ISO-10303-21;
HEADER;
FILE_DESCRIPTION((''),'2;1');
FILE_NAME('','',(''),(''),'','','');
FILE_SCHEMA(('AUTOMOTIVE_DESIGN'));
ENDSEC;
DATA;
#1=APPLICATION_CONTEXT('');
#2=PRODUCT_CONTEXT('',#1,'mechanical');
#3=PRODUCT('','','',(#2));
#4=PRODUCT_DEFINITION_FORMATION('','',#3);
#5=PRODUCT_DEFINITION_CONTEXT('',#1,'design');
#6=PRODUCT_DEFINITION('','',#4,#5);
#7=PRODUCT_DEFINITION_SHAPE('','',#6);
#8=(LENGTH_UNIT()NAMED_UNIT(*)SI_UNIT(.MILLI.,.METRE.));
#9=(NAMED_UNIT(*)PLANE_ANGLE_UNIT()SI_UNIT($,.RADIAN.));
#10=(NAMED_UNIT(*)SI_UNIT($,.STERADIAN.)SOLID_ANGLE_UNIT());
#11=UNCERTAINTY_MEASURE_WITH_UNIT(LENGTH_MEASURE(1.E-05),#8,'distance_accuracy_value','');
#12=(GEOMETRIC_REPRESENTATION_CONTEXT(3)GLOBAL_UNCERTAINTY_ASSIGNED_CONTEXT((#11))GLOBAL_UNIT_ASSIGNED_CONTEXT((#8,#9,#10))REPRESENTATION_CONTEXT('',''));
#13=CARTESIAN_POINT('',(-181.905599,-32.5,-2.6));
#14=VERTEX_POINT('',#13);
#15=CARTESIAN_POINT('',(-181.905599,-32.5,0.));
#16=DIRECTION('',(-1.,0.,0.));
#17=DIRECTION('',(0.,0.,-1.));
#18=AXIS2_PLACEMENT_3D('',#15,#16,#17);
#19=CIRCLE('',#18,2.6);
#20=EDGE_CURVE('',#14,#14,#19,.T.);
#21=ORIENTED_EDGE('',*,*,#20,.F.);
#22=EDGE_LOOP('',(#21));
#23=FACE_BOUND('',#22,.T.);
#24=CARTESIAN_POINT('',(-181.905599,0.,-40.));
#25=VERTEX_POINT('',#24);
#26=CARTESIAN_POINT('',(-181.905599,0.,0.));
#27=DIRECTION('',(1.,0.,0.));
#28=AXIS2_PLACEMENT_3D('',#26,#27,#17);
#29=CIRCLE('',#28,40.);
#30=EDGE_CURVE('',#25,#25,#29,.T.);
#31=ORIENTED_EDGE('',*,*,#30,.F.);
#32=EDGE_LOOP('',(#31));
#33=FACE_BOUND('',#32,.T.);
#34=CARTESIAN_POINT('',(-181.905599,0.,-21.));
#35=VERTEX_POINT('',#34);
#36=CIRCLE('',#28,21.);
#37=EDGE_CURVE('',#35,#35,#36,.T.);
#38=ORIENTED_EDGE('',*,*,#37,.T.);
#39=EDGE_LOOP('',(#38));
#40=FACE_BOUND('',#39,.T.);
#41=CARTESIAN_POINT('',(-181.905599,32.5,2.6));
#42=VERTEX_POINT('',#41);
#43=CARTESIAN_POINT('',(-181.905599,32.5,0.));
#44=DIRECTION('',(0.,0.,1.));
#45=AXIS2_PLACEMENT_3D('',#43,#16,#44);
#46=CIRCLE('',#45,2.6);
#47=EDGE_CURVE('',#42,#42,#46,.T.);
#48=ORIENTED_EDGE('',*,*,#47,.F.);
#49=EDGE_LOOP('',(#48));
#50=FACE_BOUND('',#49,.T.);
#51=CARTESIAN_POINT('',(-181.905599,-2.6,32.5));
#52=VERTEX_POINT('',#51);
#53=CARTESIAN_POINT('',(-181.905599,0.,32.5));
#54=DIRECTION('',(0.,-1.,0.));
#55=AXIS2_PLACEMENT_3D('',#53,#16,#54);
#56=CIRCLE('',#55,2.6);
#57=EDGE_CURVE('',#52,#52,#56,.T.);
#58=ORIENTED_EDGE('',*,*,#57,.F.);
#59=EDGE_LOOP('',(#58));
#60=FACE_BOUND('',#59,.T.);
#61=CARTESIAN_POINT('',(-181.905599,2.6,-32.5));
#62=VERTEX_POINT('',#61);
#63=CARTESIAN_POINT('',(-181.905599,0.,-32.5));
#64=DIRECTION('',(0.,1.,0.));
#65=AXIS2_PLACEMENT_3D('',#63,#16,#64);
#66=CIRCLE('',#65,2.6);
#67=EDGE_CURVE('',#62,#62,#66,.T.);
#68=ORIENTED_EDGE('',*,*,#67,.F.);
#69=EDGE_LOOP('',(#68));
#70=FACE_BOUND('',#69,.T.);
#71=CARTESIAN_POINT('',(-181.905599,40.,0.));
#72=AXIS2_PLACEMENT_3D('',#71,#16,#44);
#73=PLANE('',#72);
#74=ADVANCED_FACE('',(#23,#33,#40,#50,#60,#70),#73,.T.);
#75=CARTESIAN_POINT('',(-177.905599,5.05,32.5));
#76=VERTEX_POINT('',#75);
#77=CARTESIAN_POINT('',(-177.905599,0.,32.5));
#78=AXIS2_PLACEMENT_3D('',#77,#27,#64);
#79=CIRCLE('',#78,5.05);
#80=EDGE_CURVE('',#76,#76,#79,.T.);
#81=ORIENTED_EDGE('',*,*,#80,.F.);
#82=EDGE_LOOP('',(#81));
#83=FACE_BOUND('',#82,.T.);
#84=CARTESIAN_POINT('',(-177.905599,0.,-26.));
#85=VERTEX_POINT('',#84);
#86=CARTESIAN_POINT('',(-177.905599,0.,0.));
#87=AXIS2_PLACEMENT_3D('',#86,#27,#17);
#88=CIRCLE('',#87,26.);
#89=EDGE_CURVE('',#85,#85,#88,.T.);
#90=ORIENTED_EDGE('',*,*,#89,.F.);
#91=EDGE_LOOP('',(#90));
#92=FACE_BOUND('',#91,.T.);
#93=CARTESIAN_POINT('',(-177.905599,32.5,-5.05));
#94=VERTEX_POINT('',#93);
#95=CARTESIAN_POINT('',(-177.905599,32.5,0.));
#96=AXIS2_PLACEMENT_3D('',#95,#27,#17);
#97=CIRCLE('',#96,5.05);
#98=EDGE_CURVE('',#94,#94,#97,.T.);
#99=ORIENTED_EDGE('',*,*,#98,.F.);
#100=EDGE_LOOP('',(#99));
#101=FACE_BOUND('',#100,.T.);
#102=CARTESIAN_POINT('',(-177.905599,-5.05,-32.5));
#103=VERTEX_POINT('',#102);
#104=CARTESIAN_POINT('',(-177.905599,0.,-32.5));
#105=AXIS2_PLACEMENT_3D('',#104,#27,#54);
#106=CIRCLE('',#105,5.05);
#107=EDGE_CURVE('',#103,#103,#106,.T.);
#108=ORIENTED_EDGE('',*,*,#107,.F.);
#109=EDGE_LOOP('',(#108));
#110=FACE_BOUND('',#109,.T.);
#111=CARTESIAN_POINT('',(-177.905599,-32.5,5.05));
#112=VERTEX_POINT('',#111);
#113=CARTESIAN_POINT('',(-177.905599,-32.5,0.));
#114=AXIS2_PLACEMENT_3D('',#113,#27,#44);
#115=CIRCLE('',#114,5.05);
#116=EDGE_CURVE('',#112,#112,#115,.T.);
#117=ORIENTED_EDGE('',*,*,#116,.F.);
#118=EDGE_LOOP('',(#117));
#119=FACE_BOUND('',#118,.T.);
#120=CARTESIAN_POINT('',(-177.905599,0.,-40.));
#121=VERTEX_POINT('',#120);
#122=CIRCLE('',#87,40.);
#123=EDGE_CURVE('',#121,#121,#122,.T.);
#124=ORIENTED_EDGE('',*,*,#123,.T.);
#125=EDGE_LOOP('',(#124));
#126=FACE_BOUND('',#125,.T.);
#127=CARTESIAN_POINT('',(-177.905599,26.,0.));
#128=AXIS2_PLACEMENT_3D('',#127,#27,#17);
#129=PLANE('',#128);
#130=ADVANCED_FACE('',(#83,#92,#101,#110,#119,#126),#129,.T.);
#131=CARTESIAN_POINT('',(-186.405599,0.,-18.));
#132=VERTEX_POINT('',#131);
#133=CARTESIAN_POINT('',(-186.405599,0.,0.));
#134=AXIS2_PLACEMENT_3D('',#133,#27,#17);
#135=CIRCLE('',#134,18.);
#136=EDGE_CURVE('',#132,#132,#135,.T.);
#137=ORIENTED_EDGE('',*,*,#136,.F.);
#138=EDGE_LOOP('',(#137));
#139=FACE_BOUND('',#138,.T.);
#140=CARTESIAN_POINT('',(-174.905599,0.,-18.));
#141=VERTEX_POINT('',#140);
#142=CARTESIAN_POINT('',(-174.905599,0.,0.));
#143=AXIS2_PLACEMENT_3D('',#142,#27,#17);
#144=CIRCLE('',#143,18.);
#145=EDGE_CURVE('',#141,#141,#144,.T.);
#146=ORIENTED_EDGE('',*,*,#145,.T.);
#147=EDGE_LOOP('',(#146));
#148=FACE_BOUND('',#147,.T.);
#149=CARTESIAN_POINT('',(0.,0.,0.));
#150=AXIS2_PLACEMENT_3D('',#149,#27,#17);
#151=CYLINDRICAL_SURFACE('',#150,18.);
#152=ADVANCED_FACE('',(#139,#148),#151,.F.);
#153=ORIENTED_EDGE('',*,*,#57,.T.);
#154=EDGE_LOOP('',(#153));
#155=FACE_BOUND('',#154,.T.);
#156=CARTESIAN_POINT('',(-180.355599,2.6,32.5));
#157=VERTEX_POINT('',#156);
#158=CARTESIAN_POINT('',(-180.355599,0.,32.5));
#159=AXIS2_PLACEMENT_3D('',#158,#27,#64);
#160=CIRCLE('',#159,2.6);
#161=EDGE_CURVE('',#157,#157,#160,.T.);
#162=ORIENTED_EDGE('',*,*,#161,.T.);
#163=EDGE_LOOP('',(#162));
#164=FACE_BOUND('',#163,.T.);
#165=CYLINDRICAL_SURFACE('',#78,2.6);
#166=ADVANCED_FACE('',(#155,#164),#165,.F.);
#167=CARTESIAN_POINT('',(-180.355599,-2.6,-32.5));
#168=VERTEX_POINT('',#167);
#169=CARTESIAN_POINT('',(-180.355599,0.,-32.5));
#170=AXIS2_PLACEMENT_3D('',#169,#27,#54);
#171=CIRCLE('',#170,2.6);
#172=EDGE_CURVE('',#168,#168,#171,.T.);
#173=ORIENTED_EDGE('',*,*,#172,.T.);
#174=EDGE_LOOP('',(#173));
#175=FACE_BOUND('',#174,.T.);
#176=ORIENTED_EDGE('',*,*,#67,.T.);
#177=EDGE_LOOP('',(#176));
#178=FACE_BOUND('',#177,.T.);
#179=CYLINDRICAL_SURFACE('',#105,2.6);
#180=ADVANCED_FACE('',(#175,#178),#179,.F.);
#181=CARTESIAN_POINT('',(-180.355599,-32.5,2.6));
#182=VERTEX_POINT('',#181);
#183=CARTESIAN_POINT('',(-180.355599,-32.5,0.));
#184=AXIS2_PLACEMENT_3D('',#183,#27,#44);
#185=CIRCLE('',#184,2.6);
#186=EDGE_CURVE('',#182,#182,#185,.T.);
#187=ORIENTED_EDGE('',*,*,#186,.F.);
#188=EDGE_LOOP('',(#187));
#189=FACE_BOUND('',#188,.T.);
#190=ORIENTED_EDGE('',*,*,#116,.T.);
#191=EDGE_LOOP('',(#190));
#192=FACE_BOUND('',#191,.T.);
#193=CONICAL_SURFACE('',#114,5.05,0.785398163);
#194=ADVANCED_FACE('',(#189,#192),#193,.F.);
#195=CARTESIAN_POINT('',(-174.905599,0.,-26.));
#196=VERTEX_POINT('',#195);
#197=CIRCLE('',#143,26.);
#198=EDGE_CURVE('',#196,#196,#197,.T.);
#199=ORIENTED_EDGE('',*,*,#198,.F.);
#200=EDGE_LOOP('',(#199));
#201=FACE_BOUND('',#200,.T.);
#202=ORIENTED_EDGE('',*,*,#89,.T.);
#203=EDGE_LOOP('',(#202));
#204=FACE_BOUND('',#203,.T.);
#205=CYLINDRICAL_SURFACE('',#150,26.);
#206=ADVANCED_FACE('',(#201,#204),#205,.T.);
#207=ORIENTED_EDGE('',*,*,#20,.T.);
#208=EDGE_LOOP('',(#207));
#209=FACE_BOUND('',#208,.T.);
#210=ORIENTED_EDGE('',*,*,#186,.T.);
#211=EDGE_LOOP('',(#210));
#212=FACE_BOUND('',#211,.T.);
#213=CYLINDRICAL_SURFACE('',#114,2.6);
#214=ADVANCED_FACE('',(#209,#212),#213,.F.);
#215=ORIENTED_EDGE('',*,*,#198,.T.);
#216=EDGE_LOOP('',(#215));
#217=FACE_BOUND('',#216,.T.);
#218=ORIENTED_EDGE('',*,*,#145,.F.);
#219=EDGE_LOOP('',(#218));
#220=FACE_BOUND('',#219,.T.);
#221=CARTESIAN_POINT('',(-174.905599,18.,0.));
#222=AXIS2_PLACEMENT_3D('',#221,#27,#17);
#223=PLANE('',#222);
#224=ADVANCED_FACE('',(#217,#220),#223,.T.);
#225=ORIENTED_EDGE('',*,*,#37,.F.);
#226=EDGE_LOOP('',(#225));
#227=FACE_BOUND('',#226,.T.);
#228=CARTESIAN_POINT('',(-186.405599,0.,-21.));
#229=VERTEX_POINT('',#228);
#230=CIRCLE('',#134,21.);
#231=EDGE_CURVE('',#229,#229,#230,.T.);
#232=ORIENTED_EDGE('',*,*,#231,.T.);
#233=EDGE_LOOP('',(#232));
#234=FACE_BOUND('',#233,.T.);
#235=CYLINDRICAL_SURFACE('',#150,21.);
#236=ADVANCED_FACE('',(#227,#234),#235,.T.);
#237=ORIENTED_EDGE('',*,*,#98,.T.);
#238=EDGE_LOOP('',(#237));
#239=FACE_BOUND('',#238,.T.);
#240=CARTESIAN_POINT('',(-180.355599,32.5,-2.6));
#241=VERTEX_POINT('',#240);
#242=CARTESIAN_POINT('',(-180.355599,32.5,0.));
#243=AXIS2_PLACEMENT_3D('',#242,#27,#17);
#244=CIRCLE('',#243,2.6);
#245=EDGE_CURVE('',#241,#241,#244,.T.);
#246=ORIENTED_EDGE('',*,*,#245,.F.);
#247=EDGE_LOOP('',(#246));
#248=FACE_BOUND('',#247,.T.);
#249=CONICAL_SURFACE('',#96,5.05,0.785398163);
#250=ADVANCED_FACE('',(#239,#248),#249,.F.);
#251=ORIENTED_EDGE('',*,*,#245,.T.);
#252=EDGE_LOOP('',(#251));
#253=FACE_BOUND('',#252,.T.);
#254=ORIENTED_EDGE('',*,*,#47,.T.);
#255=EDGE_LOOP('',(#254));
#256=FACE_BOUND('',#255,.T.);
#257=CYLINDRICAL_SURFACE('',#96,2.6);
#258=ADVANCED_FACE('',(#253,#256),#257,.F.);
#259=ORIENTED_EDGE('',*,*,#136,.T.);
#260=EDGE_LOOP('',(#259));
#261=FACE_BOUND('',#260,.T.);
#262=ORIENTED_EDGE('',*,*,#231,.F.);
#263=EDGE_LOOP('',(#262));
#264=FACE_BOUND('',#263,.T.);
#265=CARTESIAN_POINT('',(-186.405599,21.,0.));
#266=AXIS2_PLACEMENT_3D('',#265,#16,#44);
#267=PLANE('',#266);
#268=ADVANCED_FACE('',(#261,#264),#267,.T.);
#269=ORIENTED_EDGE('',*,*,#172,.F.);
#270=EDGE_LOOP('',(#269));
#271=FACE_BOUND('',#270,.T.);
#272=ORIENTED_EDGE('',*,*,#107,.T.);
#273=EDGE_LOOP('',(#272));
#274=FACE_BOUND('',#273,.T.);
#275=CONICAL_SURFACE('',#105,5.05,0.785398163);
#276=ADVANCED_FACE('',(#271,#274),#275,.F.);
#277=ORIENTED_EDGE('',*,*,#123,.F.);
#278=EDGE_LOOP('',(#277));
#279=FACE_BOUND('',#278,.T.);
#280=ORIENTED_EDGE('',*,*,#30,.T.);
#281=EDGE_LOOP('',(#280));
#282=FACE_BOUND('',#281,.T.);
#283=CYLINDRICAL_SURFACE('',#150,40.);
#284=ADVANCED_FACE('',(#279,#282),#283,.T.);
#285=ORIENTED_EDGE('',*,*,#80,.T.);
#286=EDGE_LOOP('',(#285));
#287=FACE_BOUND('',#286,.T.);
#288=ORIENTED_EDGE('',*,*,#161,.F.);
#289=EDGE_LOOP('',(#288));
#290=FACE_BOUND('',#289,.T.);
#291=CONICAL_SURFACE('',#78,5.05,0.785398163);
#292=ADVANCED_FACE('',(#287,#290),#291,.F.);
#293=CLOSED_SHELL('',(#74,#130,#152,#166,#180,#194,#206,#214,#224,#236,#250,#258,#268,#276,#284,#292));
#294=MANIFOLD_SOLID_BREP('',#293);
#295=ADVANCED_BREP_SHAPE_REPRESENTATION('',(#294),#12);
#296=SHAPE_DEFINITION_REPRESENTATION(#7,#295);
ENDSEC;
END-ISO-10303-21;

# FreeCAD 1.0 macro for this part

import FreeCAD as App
import Part
import Sketcher
Q = App.Units.Quantity


def add_polygon(sketch, points):
    """Adds a closed chain of lines whose ends are joined by coincident constraints."""
    first, n = sketch.GeometryCount, len(points)
    for a, b in zip(points, points[1:] + points[:1]):
        sketch.addGeometry(Part.LineSegment(App.Vector(*a, 0), App.Vector(*b, 0)), False)
    for i in range(n):
        sketch.addConstraint(Sketcher.Constraint("Coincident", first + i, 2, first + (i + 1) % n, 1))

doc = App.newDocument("Part")
body = doc.addObject("PartDesign::Body", "Body")

sketch1 = doc.addObject("Sketcher::SketchObject", "Sketch")
body.addObject(sketch1)
sketch1.AttachmentSupport = (doc.XY_Plane, [""])
sketch1.MapMode = "FlatFace"
add_polygon(sketch1, [(-174.9, 26), (-177.9, 26), (-177.9, 40), (-181.9, 40), (-181.9, 21), (-186.4, 21), (-186.4, 18), (-174.9, 18)])
sketch1.addConstraint([
    Sketcher.Constraint("Horizontal", 0),
    Sketcher.Constraint("Vertical", 1),
    Sketcher.Constraint("Horizontal", 2),
    Sketcher.Constraint("Vertical", 3),
    Sketcher.Constraint("Horizontal", 4),
    Sketcher.Constraint("Vertical", 5),
    Sketcher.Constraint("Horizontal", 6),
    Sketcher.Constraint("Vertical", 7),
    Sketcher.Constraint("Equal", 0, 5),
    Sketcher.Constraint("DistanceX", 0, 2, 0, 1, Q("3 mm")),
    Sketcher.Constraint("DistanceX", 2, 2, 2, 1, Q("4 mm")),
    Sketcher.Constraint("DistanceY", 1, 1, 1, 2, Q("14 mm")),
    Sketcher.Constraint("DistanceY", 3, 2, 3, 1, Q("19 mm")),
    Sketcher.Constraint("DistanceX", 4, 2, 4, 1, Q("4.5 mm")),
    Sketcher.Constraint("DistanceY", -1, 1, 0, 2, Q("26 mm")),
    Sketcher.Constraint("DistanceX", 0, 2, -1, 1, Q("177.905599 mm")),
])
revolution = doc.addObject("PartDesign::Revolution", "Revolution")
body.addObject(revolution)
revolution.Profile = sketch1
revolution.ReferenceAxis = (sketch1, ["H_Axis"])
revolution.Angle = 360

sketch2 = doc.addObject("Sketcher::SketchObject", "Sketch001")
body.addObject(sketch2)
sketch2.AttachmentSupport = (doc.YZ_Plane, [""])
sketch2.MapMode = "FlatFace"
sketch2.AttachmentOffset = App.Placement(App.Vector(0, 0, -177.905599), App.Rotation())
sketch2.addGeometry(Part.Circle(App.Vector(32.5, 0, 0), App.Vector(0, 0, 1), 2.6), False)
sketch2.addConstraint([
    Sketcher.Constraint("PointOnObject", 0, 3, -1),
    Sketcher.Constraint("Diameter", 0, Q("5.2 mm")),
    Sketcher.Constraint("DistanceX", -1, 1, 0, 3, Q("32.5 mm")),
])
doc.recompute()
hole = doc.addObject("PartDesign::Hole", "Hole")
body.addObject(hole)
hole.Profile = sketch2
hole.ThreadType = "None"
hole.Diameter = 5.2
hole.DepthType = "ThroughAll"
hole.HoleCutType = "Countersink"
hole.HoleCutDiameter = 10.1
hole.HoleCutCountersinkAngle = 90
doc.recompute()

polarpattern = doc.addObject("PartDesign::PolarPattern", "PolarPattern")
body.addObject(polarpattern)
polarpattern.Originals = [hole]
polarpattern.Axis = (doc.X_Axis, [""])
polarpattern.Angle = 360
polarpattern.Occurrences = 4
body.Tip = polarpattern

doc.recompute()
